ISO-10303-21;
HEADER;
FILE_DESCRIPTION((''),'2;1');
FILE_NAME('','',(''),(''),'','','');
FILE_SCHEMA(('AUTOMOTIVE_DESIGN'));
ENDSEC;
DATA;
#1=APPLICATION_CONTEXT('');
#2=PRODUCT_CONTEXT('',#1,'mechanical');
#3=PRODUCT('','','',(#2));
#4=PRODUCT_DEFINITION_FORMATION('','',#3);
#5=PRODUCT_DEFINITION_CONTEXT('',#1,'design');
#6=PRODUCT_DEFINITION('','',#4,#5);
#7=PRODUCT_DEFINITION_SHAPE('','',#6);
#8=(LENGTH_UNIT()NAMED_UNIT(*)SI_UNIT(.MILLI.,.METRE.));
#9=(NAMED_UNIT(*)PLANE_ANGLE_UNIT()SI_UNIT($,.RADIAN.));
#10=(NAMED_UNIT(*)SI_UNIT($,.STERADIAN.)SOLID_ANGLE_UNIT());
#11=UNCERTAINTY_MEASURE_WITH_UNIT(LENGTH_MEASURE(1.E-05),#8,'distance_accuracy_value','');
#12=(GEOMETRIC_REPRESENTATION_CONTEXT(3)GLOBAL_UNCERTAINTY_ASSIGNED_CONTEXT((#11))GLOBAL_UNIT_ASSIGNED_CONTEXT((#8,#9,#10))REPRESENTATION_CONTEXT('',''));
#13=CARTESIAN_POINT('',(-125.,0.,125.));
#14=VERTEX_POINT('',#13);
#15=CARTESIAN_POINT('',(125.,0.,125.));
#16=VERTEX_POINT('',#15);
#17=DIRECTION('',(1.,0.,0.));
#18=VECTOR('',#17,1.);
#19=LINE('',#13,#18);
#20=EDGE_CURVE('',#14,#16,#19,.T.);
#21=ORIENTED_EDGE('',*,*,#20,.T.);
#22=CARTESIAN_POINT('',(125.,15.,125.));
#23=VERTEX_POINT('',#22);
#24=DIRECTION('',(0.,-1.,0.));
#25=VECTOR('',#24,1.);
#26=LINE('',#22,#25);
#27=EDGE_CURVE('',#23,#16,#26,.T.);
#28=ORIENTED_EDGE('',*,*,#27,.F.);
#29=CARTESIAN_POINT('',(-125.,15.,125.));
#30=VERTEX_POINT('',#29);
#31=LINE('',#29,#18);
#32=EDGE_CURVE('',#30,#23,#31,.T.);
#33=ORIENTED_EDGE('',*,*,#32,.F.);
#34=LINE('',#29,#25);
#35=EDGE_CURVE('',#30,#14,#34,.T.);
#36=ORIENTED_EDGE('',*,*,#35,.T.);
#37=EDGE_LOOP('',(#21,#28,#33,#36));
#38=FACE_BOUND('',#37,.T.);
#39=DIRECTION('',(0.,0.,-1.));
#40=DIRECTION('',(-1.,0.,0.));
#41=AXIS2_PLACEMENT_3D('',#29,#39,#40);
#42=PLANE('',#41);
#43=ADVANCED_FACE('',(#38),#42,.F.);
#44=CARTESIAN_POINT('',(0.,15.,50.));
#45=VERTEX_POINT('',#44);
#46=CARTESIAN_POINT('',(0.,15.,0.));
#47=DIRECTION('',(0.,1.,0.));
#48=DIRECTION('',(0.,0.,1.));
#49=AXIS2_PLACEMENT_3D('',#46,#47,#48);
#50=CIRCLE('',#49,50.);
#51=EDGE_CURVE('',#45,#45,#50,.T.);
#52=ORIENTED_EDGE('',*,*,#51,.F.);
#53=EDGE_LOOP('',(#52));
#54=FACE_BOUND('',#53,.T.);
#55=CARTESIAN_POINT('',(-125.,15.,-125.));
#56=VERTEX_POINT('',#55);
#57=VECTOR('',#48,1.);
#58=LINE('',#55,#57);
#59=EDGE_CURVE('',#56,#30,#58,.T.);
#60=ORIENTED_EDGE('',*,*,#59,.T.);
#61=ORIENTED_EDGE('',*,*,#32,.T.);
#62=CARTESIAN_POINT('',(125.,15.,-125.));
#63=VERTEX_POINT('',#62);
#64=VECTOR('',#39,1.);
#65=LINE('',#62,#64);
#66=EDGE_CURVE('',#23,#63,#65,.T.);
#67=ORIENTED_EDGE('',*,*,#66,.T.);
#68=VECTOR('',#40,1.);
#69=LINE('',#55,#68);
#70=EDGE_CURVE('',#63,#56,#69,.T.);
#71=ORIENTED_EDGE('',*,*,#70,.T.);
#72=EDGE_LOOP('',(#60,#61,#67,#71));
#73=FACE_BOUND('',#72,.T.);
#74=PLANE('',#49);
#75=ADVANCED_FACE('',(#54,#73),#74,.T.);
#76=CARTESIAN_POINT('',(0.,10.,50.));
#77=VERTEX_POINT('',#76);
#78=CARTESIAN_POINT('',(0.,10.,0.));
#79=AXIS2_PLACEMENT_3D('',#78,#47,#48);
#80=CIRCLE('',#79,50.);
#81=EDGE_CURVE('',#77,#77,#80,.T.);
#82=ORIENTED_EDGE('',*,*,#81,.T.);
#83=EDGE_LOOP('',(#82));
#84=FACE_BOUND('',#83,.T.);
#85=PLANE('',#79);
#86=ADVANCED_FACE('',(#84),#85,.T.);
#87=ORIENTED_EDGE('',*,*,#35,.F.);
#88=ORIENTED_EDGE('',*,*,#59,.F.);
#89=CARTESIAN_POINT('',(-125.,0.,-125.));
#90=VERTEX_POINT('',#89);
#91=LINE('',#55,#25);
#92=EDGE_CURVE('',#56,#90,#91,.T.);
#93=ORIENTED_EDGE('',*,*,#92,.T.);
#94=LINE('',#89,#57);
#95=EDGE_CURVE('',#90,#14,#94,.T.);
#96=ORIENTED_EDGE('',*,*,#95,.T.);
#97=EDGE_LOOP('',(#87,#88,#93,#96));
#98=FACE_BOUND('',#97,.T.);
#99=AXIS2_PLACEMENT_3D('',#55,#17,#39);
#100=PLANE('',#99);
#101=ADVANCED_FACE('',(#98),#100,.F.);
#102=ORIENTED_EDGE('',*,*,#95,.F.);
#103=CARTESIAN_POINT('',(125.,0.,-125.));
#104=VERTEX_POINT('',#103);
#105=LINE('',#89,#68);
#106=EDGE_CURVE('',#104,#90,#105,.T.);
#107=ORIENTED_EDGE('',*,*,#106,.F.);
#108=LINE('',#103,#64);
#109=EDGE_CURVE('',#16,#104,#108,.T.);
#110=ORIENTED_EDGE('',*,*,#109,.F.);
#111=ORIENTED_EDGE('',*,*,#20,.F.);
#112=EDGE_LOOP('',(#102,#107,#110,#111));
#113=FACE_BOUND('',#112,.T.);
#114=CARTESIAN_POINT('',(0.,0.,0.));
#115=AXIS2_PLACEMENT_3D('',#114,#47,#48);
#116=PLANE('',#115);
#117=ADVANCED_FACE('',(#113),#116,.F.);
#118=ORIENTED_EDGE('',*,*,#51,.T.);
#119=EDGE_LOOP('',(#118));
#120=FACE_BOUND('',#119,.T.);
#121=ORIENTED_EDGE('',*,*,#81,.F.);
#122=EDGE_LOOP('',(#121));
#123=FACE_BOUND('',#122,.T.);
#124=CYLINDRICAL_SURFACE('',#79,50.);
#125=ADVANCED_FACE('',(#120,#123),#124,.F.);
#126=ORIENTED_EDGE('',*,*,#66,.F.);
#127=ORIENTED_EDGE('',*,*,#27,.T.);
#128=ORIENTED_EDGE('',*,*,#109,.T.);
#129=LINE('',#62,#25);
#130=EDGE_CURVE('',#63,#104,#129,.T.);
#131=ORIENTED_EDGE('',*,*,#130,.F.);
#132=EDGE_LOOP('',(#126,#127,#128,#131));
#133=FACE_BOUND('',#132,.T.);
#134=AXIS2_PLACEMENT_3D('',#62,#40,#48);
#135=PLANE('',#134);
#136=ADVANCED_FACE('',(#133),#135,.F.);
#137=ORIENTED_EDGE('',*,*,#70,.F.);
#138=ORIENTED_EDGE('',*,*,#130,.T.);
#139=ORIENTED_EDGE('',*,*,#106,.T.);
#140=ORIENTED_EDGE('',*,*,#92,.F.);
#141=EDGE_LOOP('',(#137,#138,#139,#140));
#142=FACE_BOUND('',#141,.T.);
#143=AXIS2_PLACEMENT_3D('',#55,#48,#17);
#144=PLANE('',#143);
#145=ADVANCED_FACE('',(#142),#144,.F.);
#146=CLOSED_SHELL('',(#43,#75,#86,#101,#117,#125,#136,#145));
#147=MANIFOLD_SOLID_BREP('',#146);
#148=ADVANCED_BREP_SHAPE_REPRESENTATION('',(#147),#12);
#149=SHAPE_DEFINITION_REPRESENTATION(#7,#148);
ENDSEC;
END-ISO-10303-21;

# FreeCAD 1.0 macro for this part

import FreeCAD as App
import Part
import Sketcher
from FreeCAD import Vector


def add_polygon(sketch, points):
    """Adds a closed chain of lines whose ends are joined by coincident constraints."""
    first, n = sketch.GeometryCount, len(points)
    for a, b in zip(points, points[1:] + points[:1]):
        sketch.addGeometry(Part.LineSegment(App.Vector(*a, 0), App.Vector(*b, 0)), False)
    for i in range(n):
        sketch.addConstraint(Sketcher.Constraint("Coincident", first + i, 2, first + (i + 1) % n, 1))

doc = App.newDocument("Part")
params = doc.addObject("Spreadsheet::Sheet", "Params")
for row, (alias, value) in enumerate([
    ("sketch1_width", "250 mm"),
    ("pad1_length", "15 mm"),
    ("sketch2_diameter", "100 mm"),
    ("pocket1_length", "5 mm"),
], start=1):
    params.set(f"A{row}", alias)
    params.set(f"B{row}", "=" + value)
    params.setAlias(f"B{row}", alias)

body = doc.addObject("PartDesign::Body", "Body")

# Sketch on XZ plane
sketch1 = body.newObject("Sketcher::SketchObject", "Sketch")
sketch1.AttachmentSupport = (doc.getObject("XZ_Plane"), [""])
sketch1.MapMode = "FlatFace"
add_polygon(sketch1, [(-125, -125), (-125, 125), (125, 125), (125, -125)])  # lines 0-3
sketch1.addConstraint([
    Sketcher.Constraint("Vertical", 0),
    Sketcher.Constraint("Horizontal", 1),
    Sketcher.Constraint("Vertical", 2),
    Sketcher.Constraint("Horizontal", 3),
    Sketcher.Constraint("Symmetric", 0, 2, 2, 2, -1, 1),
    Sketcher.Constraint("Equal", 3, 0),
    Sketcher.Constraint("DistanceX", 1, 1, 1, 2, 250.0),
])
sketch1.setExpression("Constraints[10]", "Params.sketch1_width")
pad1 = body.newObject("PartDesign::Pad", "Pad")
pad1.Profile = sketch1
pad1.setExpression("Length", "Params.pad1_length")
pad1.Reversed = True

# Sketch on XZ plane
sketch2 = body.newObject("Sketcher::SketchObject", "Sketch001")
sketch2.AttachmentSupport = (doc.getObject("XZ_Plane"), [""])
sketch2.MapMode = "FlatFace"
sketch2.AttachmentOffset = App.Placement(Vector(0, 0, -15), App.Rotation())
sketch2.addGeometry(Part.Circle(Vector(0, 0, 0), Vector(0, 0, 1), 50), False)
sketch2.addConstraint([
    Sketcher.Constraint("Coincident", 0, 3, -1, 1),
    Sketcher.Constraint("Diameter", 0, 100.0),
])
sketch2.setExpression("Constraints[1]", "Params.sketch2_diameter")
pocket1 = body.newObject("PartDesign::Pocket", "Pocket")
pocket1.Profile = sketch2
pocket1.setExpression("Length", "Params.pocket1_length")
pocket1.Reversed = True

doc.recompute()
